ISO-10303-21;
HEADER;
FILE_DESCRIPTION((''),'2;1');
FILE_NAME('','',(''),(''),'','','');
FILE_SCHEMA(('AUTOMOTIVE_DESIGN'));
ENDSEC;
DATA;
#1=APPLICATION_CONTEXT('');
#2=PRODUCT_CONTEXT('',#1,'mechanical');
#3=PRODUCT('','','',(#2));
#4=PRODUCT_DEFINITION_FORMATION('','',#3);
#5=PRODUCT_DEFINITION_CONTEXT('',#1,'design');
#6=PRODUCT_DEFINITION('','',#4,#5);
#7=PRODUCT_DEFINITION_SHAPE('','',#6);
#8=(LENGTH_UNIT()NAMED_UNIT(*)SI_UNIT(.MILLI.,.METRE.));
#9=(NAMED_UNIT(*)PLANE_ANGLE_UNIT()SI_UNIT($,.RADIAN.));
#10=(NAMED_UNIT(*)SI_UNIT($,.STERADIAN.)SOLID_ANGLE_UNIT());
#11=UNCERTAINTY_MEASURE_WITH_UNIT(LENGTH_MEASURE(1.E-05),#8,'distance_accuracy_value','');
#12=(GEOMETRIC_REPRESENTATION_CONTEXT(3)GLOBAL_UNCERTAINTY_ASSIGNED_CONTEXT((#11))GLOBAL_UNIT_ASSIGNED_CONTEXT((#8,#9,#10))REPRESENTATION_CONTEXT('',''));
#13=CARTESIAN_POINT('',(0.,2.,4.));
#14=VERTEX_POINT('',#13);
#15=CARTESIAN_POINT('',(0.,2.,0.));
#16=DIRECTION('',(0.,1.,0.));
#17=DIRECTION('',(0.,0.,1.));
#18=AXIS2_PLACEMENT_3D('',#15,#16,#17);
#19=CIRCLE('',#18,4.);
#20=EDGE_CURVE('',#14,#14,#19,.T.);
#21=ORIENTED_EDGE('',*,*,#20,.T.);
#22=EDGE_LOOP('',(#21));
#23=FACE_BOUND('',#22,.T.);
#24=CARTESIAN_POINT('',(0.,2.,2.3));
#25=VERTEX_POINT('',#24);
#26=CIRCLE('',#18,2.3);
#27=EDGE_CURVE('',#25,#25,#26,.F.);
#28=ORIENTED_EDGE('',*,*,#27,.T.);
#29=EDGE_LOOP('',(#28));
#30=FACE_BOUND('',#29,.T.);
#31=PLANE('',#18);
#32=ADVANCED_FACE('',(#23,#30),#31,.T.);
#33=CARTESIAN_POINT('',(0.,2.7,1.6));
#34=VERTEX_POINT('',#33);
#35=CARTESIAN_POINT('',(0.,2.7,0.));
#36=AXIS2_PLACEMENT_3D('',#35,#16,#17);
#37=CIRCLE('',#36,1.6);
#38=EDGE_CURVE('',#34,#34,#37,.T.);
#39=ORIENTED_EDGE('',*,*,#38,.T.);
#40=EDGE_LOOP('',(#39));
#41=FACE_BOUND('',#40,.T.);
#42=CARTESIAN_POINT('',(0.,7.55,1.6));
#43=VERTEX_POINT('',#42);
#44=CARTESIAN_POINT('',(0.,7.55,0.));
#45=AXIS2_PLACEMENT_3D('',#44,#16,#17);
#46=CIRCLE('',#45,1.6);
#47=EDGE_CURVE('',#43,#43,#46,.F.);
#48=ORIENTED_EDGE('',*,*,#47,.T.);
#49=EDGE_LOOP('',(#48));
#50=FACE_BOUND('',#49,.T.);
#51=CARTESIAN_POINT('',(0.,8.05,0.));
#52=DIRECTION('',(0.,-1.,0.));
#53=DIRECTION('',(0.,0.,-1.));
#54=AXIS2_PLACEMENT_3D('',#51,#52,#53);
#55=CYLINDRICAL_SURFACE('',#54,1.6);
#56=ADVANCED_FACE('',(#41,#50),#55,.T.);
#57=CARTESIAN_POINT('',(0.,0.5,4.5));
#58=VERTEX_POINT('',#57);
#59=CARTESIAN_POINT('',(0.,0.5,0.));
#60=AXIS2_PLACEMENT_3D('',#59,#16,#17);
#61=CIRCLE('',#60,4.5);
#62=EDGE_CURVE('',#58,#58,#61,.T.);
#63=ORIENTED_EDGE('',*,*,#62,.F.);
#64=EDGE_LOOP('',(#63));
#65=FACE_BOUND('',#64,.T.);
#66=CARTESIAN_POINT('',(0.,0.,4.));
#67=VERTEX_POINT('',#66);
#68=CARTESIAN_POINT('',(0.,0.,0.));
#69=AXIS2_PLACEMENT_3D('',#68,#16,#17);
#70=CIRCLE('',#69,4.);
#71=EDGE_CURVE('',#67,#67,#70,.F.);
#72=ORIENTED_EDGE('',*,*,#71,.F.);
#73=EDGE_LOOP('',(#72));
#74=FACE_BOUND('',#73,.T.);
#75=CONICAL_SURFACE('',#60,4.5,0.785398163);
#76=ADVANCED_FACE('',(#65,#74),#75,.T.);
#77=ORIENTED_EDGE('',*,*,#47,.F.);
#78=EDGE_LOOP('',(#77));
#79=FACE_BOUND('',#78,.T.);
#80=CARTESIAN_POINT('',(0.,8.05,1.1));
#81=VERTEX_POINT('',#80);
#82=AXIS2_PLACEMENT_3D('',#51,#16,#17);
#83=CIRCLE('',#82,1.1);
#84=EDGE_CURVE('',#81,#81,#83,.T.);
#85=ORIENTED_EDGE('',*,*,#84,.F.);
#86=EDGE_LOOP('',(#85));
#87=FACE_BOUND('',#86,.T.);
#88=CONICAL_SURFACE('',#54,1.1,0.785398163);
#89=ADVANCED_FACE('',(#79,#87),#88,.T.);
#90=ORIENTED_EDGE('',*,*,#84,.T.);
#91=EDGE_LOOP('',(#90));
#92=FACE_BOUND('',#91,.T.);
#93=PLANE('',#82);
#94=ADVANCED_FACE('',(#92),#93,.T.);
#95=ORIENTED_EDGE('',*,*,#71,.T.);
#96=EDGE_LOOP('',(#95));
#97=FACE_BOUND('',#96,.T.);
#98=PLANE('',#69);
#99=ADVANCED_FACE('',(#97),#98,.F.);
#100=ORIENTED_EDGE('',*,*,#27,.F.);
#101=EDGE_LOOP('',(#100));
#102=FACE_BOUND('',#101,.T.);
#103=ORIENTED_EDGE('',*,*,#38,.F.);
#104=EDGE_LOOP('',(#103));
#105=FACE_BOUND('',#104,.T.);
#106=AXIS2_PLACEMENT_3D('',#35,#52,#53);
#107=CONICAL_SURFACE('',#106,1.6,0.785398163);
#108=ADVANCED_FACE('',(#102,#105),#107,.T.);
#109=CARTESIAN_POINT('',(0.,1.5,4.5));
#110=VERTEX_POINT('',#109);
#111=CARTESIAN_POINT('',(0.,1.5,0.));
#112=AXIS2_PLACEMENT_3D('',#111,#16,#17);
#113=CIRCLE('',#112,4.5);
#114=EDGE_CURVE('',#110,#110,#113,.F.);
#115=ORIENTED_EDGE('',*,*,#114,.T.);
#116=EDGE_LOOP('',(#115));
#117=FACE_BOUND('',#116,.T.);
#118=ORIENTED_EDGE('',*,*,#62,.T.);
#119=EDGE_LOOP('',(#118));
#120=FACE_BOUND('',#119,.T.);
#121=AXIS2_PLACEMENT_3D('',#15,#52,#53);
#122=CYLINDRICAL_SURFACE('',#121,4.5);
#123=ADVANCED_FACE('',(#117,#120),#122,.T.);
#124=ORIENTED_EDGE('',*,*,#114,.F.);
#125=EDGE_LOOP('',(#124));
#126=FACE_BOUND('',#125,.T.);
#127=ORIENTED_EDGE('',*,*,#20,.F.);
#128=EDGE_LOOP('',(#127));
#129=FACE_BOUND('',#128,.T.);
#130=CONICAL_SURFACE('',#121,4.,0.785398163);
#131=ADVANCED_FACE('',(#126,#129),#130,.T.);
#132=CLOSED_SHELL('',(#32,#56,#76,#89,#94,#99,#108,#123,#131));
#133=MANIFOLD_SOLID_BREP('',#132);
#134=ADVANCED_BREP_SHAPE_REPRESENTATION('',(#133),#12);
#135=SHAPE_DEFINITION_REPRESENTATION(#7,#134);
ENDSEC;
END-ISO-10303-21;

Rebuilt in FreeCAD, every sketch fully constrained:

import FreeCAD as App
import Part
import Sketcher

V = App.Vector


def edges_at(feature, points):
    """Names of the edges that pass closest to the given points."""
    edges = feature.Shape.Edges
    near = lambda p: min(range(len(edges)), key=lambda i: edges[i].distToShape(Part.Vertex(*p))[0])
    return sorted({f"Edge{near(p) + 1}" for p in points})

doc = App.newDocument("Part")
body = doc.addObject("PartDesign::Body", "Body")

# Sketch on XZ plane
sketch1 = body.newObject("Sketcher::SketchObject", "Sketch")
sketch1.AttachmentSupport = (doc.getObject("XZ_Plane"), [""])
sketch1.MapMode = "FlatFace"
sketch1.addGeometry([
    Part.Circle(V(0, 0, 0), V(0, 0, 1), 4.5),
    Part.Circle(V(0, 0, 0), V(0, 0, 1), 1.6),
], False)
sketch1.addConstraint([
    Sketcher.Constraint("Coincident", 0, 3, -1, 1),
    Sketcher.Constraint("Coincident", 1, 3, -1, 1),
    Sketcher.Constraint("Diameter", 0, 9.0),
    Sketcher.Constraint("Diameter", 1, 3.2),
])
pad1 = body.newObject("PartDesign::Pad", "Pad")
pad1.Profile = sketch1
pad1.Length = 2
pad1.Reversed = True

# Sketch on XZ plane
sketch2 = body.newObject("Sketcher::SketchObject", "Sketch001")
sketch2.AttachmentSupport = (doc.getObject("XZ_Plane"), [""])
sketch2.MapMode = "FlatFace"
sketch2.addGeometry(Part.Circle(V(0, 0, 0), V(0, 0, 1), 1.6), False)
sketch2.addConstraint([
    Sketcher.Constraint("Coincident", 0, 3, -1, 1),
    Sketcher.Constraint("Diameter", 0, 3.2),
])
pad2 = body.newObject("PartDesign::Pad", "Pad001")
pad2.Profile = sketch2
pad2.Length = 8.05
pad2.Reversed = True
doc.recompute()

chamfer = body.newObject("PartDesign::Chamfer", "Chamfer")
chamfer.Base = (pad2, edges_at(pad2, [(0, 2, -1.6)]))
chamfer.Size = 0.7
doc.recompute()

chamfer2 = body.newObject("PartDesign::Chamfer", "Chamfer001")
chamfer2.Base = (chamfer, edges_at(chamfer, [(0, 0, -4.5), (0, 2, -4.5)]))
chamfer2.Size = 0.5
doc.recompute()

chamfer3 = body.newObject("PartDesign::Chamfer", "Chamfer002")
chamfer3.Base = (chamfer2, edges_at(chamfer2, [(0, 8.05, -1.6)]))
chamfer3.Size = 0.5

doc.recompute()
